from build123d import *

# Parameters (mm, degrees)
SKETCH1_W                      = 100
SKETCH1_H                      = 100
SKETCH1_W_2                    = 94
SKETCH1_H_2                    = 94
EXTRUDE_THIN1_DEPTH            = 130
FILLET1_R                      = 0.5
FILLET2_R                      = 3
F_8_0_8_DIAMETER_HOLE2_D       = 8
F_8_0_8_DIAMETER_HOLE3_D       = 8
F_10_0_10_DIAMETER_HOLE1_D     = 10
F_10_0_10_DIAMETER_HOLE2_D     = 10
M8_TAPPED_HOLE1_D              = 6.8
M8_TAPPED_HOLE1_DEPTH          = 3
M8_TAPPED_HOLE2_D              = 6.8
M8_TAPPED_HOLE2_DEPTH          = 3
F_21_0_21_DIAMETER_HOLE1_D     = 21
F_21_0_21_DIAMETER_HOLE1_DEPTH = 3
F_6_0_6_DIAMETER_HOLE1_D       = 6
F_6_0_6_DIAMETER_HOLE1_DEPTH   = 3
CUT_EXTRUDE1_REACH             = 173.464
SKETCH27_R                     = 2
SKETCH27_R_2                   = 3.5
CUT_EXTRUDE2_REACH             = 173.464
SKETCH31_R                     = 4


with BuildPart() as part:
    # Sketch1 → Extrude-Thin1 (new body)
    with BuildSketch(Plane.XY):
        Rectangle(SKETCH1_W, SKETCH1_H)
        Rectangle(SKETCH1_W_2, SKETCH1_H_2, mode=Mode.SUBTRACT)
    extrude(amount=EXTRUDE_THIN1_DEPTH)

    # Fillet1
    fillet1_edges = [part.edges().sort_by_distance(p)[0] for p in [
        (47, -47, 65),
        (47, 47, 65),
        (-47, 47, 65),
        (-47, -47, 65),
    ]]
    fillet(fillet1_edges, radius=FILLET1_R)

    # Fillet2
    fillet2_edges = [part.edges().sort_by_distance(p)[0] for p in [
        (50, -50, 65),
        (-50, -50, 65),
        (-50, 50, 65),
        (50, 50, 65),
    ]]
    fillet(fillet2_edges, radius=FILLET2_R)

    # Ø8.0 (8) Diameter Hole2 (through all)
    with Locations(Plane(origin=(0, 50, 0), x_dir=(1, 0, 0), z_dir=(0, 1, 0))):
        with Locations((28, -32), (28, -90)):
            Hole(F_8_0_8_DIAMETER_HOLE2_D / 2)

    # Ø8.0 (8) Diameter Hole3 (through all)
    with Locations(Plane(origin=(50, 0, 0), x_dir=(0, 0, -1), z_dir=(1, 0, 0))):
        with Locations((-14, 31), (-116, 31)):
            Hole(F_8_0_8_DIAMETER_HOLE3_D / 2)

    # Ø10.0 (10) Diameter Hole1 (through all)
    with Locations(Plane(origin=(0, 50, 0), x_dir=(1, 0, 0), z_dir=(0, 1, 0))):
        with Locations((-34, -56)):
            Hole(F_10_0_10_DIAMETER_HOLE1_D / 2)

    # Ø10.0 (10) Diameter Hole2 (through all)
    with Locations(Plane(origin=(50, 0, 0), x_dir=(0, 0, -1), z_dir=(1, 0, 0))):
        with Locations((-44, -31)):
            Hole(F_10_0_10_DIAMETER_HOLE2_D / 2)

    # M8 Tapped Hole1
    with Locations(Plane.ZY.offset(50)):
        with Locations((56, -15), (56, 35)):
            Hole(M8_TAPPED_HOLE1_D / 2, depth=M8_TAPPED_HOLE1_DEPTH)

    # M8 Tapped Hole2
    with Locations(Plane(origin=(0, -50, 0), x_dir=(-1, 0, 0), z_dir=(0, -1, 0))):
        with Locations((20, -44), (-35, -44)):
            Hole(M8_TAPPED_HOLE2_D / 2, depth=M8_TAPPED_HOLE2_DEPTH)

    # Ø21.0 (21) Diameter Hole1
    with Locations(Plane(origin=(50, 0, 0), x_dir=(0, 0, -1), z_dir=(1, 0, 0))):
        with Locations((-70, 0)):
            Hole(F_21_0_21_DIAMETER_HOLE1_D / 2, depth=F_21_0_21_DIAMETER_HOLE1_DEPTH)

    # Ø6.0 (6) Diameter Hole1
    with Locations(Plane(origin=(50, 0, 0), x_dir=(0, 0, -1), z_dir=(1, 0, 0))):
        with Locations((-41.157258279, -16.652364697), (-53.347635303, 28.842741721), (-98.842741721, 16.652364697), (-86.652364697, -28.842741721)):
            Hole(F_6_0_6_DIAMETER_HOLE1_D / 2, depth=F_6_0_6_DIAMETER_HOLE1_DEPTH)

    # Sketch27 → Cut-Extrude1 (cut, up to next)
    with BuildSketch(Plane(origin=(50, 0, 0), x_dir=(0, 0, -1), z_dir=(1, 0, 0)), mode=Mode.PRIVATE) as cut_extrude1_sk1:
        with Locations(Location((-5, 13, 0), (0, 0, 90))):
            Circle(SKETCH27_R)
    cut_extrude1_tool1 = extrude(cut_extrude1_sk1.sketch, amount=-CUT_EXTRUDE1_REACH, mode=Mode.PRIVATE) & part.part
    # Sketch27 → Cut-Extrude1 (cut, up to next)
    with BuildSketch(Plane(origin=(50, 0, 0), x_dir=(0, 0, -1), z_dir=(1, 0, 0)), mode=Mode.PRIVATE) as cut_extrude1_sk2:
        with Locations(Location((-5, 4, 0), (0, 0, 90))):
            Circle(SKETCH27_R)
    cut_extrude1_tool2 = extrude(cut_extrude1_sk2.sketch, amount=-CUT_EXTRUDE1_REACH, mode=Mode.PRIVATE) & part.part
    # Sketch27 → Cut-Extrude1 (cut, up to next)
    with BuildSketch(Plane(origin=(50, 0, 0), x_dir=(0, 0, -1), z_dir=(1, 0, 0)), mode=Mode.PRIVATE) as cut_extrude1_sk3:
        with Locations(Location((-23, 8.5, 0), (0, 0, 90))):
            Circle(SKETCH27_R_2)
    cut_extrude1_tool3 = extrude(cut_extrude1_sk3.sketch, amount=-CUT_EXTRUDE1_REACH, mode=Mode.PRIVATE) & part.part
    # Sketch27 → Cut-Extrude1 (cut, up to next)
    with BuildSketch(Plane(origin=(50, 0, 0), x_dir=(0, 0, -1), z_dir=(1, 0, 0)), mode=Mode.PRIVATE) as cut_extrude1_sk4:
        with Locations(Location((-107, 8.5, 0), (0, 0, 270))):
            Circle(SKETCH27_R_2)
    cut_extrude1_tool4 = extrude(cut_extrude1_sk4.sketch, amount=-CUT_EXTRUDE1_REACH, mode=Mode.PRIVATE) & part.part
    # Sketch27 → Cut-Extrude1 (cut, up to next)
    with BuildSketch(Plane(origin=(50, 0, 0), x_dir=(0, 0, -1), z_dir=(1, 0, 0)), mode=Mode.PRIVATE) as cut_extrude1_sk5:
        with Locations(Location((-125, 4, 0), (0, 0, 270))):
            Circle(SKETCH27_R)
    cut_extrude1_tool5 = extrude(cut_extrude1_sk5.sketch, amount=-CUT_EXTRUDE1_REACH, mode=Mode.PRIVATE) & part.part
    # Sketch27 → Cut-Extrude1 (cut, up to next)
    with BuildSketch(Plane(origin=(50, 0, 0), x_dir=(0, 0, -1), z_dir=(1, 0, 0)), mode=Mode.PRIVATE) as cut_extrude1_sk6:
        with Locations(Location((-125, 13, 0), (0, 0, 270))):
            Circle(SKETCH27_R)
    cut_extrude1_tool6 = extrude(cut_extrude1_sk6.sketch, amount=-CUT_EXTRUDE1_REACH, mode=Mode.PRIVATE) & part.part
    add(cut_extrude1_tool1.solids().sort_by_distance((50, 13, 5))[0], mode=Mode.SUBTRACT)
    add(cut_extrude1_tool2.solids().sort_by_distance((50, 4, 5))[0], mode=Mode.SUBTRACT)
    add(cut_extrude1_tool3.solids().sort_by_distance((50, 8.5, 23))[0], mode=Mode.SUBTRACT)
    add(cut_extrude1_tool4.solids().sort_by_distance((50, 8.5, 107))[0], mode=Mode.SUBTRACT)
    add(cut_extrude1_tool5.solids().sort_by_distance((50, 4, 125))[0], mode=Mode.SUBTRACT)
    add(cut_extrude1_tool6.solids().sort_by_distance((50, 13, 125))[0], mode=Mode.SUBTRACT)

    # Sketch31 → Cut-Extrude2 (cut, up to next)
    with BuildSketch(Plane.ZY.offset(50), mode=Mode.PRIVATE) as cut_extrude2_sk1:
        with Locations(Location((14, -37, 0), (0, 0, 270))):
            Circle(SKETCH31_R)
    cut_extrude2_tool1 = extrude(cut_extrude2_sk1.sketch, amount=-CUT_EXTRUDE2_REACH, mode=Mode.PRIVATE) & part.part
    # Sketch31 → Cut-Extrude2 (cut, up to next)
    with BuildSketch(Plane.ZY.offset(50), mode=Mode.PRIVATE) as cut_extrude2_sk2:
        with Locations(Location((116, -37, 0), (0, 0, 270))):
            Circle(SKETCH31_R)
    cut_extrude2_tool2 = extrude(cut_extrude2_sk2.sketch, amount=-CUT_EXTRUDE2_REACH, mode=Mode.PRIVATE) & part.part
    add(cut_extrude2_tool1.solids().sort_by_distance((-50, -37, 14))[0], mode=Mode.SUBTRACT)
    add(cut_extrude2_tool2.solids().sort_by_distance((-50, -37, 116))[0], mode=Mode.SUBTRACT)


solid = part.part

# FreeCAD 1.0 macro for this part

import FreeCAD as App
import Part
import Sketcher
from FreeCAD import Vector
Q = App.Units.Quantity


def edges_at(feature, points):
    """Names of the edges that pass closest to the given points."""
    edges = feature.Shape.Edges
    near = lambda p: min(range(len(edges)), key=lambda i: edges[i].distToShape(Part.Vertex(*p))[0])
    return sorted({f"Edge{near(p) + 1}" for p in points})


def add_polygon(sketch, points):
    """Adds a closed chain of lines whose ends are joined by coincident constraints."""
    first, n = sketch.GeometryCount, len(points)
    for a, b in zip(points, points[1:] + points[:1]):
        sketch.addGeometry(Part.LineSegment(App.Vector(*a, 0), App.Vector(*b, 0)), False)
    for i in range(n):
        sketch.addConstraint(Sketcher.Constraint("Coincident", first + i, 2, first + (i + 1) % n, 1))

doc = App.newDocument("Part")
body = doc.addObject("PartDesign::Body", "Body")

# Sketch on XY plane
sketch1 = doc.addObject("Sketcher::SketchObject", "Sketch")
body.addObject(sketch1)
sketch1.AttachmentSupport = (doc.XY_Plane, [""])
sketch1.MapMode = "FlatFace"
add_polygon(sketch1, [(-50, 50), (-50, -50), (50, -50), (50, 50)])  # lines 0-3
add_polygon(sketch1, [(47, -47), (-47, -47), (-47, 47), (47, 47)])  # lines 4-7
sketch1.addConstraint([
    Sketcher.Constraint("Vertical", 0),
    Sketcher.Constraint("Horizontal", 1),
    Sketcher.Constraint("Vertical", 2),
    Sketcher.Constraint("Horizontal", 3),
    Sketcher.Constraint("Horizontal", 4),
    Sketcher.Constraint("Vertical", 5),
    Sketcher.Constraint("Horizontal", 6),
    Sketcher.Constraint("Vertical", 7),
    Sketcher.Constraint("Symmetric", 0, 2, 2, 2, -1, 1),
    Sketcher.Constraint("Symmetric", 4, 2, 6, 2, -1, 1),
    Sketcher.Constraint("Equal", 3, 0),
    Sketcher.Constraint("Equal", 6, 5),
    Sketcher.Constraint("DistanceX", 1, 1, 1, 2, Q("100 mm")),
    Sketcher.Constraint("DistanceX", 4, 2, 4, 1, Q("94 mm")),
])
pad1 = doc.addObject("PartDesign::Pad", "Pad")
body.addObject(pad1)
pad1.Profile = sketch1
pad1.Length = 130
doc.recompute()

fillet = doc.addObject("PartDesign::Fillet", "Fillet")
body.addObject(fillet)
fillet.Base = (pad1, edges_at(pad1, [
    (47, -47, 65),
    (47, 47, 65),
    (-47, 47, 65),
    (-47, -47, 65),
]))
fillet.Radius = 0.5
doc.recompute()

fillet2 = doc.addObject("PartDesign::Fillet", "Fillet001")
body.addObject(fillet2)
fillet2.Base = (fillet, edges_at(fillet, [
    (50, -50, 65),
    (-50, -50, 65),
    (-50, 50, 65),
    (50, 50, 65),
]))
fillet2.Radius = 3

# Sketch on XZ plane
sketch2 = doc.addObject("Sketcher::SketchObject", "Sketch001")
body.addObject(sketch2)
sketch2.AttachmentSupport = (doc.XZ_Plane, [""])
sketch2.MapMode = "FlatFace"
sketch2.AttachmentOffset = App.Placement(Vector(0, 0, -50), App.Rotation())
sketch2.addGeometry([
    Part.Circle(Vector(28, 32, 0), Vector(0, 0, 1), 4),
    Part.Circle(Vector(28, 90, 0), Vector(0, 0, 1), 4),
], False)
sketch2.addConstraint([
    Sketcher.Constraint("Equal", 0, 1),
    Sketcher.Constraint("Vertical", 0, 3, 1, 3),
    Sketcher.Constraint("Diameter", 0, Q("8 mm")),
    Sketcher.Constraint("DistanceX", -1, 1, 0, 3, Q("28 mm")),
    Sketcher.Constraint("DistanceY", -1, 1, 0, 3, Q("32 mm")),
    Sketcher.Constraint("DistanceY", -1, 1, 1, 3, Q("90 mm")),
])
doc.recompute()
hole = doc.addObject("PartDesign::Hole", "Hole")
body.addObject(hole)
hole.Profile = sketch2
hole.ThreadType = "None"
hole.Diameter = 8
hole.DepthType = "ThroughAll"
hole.Reversed = True

# Sketch on YZ plane
sketch3 = doc.addObject("Sketcher::SketchObject", "Sketch002")
body.addObject(sketch3)
sketch3.AttachmentSupport = (doc.YZ_Plane, [""])
sketch3.MapMode = "FlatFace"
sketch3.AttachmentOffset = App.Placement(Vector(0, 0, 50), App.Rotation())
sketch3.addGeometry([
    Part.Circle(Vector(31, 14, 0), Vector(0, 0, 1), 4),
    Part.Circle(Vector(31, 116, 0), Vector(0, 0, 1), 4),
], False)
sketch3.addConstraint([
    Sketcher.Constraint("Equal", 0, 1),
    Sketcher.Constraint("Vertical", 0, 3, 1, 3),
    Sketcher.Constraint("Diameter", 0, Q("8 mm")),
    Sketcher.Constraint("DistanceX", -1, 1, 0, 3, Q("31 mm")),
    Sketcher.Constraint("DistanceY", -1, 1, 0, 3, Q("14 mm")),
    Sketcher.Constraint("DistanceY", -1, 1, 1, 3, Q("116 mm")),
])
doc.recompute()
hole2 = doc.addObject("PartDesign::Hole", "Hole001")
body.addObject(hole2)
hole2.Profile = sketch3
hole2.ThreadType = "None"
hole2.Diameter = 8
hole2.DepthType = "ThroughAll"

# Sketch on XZ plane
sketch4 = doc.addObject("Sketcher::SketchObject", "Sketch003")
body.addObject(sketch4)
sketch4.AttachmentSupport = (doc.XZ_Plane, [""])
sketch4.MapMode = "FlatFace"
sketch4.AttachmentOffset = App.Placement(Vector(0, 0, -50), App.Rotation())
sketch4.addGeometry(Part.Circle(Vector(-34, 56, 0), Vector(0, 0, 1), 5), False)
sketch4.addConstraint([
    Sketcher.Constraint("Diameter", 0, Q("10 mm")),
    Sketcher.Constraint("DistanceX", 0, 3, -1, 1, Q("34 mm")),
    Sketcher.Constraint("DistanceY", -1, 1, 0, 3, Q("56 mm")),
])
doc.recompute()
hole3 = doc.addObject("PartDesign::Hole", "Hole002")
body.addObject(hole3)
hole3.Profile = sketch4
hole3.ThreadType = "None"
hole3.Diameter = 10
hole3.DepthType = "ThroughAll"
hole3.Reversed = True

# Sketch on YZ plane
sketch5 = doc.addObject("Sketcher::SketchObject", "Sketch004")
body.addObject(sketch5)
sketch5.AttachmentSupport = (doc.YZ_Plane, [""])
sketch5.MapMode = "FlatFace"
sketch5.AttachmentOffset = App.Placement(Vector(0, 0, 50), App.Rotation())
sketch5.addGeometry(Part.Circle(Vector(-31, 44, 0), Vector(0, 0, 1), 5), False)
sketch5.addConstraint([
    Sketcher.Constraint("Diameter", 0, Q("10 mm")),
    Sketcher.Constraint("DistanceX", 0, 3, -1, 1, Q("31 mm")),
    Sketcher.Constraint("DistanceY", -1, 1, 0, 3, Q("44 mm")),
])
doc.recompute()
hole4 = doc.addObject("PartDesign::Hole", "Hole003")
body.addObject(hole4)
hole4.Profile = sketch5
hole4.ThreadType = "None"
hole4.Diameter = 10
hole4.DepthType = "ThroughAll"

# Sketch on YZ plane
sketch6 = doc.addObject("Sketcher::SketchObject", "Sketch005")
body.addObject(sketch6)
sketch6.AttachmentSupport = (doc.YZ_Plane, [""])
sketch6.MapMode = "FlatFace"
sketch6.AttachmentOffset = App.Placement(Vector(0, 0, -50), App.Rotation())
sketch6.addGeometry([
    Part.Circle(Vector(-15, 56, 0), Vector(0, 0, 1), 3.4),
    Part.Circle(Vector(35, 56, 0), Vector(0, 0, 1), 3.4),
], False)
sketch6.addConstraint([
    Sketcher.Constraint("Equal", 0, 1),
    Sketcher.Constraint("Horizontal", 0, 3, 1, 3),
    Sketcher.Constraint("Diameter", 0, Q("6.8 mm")),
    Sketcher.Constraint("DistanceX", 0, 3, -1, 1, Q("15 mm")),
    Sketcher.Constraint("DistanceY", -1, 1, 0, 3, Q("56 mm")),
    Sketcher.Constraint("DistanceX", -1, 1, 1, 3, Q("35 mm")),
])
doc.recompute()
hole5 = doc.addObject("PartDesign::Hole", "Hole004")
body.addObject(hole5)
hole5.Profile = sketch6
hole5.ThreadType = "None"
hole5.Diameter = 6.8
hole5.DepthType = "Dimension"
hole5.Depth = 3
hole5.DrillPoint = "Flat"
hole5.Reversed = True

# Sketch on XZ plane
sketch7 = doc.addObject("Sketcher::SketchObject", "Sketch006")
body.addObject(sketch7)
sketch7.AttachmentSupport = (doc.XZ_Plane, [""])
sketch7.MapMode = "FlatFace"
sketch7.AttachmentOffset = App.Placement(Vector(0, 0, 50), App.Rotation())
sketch7.addGeometry([
    Part.Circle(Vector(-20, 44, 0), Vector(0, 0, 1), 3.4),
    Part.Circle(Vector(35, 44, 0), Vector(0, 0, 1), 3.4),
], False)
sketch7.addConstraint([
    Sketcher.Constraint("Equal", 0, 1),
    Sketcher.Constraint("Horizontal", 0, 3, 1, 3),
    Sketcher.Constraint("Diameter", 0, Q("6.8 mm")),
    Sketcher.Constraint("DistanceX", 0, 3, -1, 1, Q("20 mm")),
    Sketcher.Constraint("DistanceY", -1, 1, 0, 3, Q("44 mm")),
    Sketcher.Constraint("DistanceX", -1, 1, 1, 3, Q("35 mm")),
])
doc.recompute()
hole6 = doc.addObject("PartDesign::Hole", "Hole005")
body.addObject(hole6)
hole6.Profile = sketch7
hole6.ThreadType = "None"
hole6.Diameter = 6.8
hole6.DepthType = "Dimension"
hole6.Depth = 3
hole6.DrillPoint = "Flat"

# Sketch on YZ plane
sketch8 = doc.addObject("Sketcher::SketchObject", "Sketch007")
body.addObject(sketch8)
sketch8.AttachmentSupport = (doc.YZ_Plane, [""])
sketch8.MapMode = "FlatFace"
sketch8.AttachmentOffset = App.Placement(Vector(0, 0, 50), App.Rotation())
sketch8.addGeometry(Part.Circle(Vector(0, 70, 0), Vector(0, 0, 1), 10), False)
sketch8.addConstraint([
    Sketcher.Constraint("PointOnObject", 0, 3, -2),
    Sketcher.Constraint("Diameter", 0, Q("21 mm")),
    Sketcher.Constraint("DistanceY", -1, 1, 0, 3, Q("70 mm")),
])
doc.recompute()
hole7 = doc.addObject("PartDesign::Hole", "Hole006")
body.addObject(hole7)
hole7.Profile = sketch8
hole7.ThreadType = "None"
hole7.Diameter = 21
hole7.DepthType = "Dimension"
hole7.Depth = 3
hole7.DrillPoint = "Flat"

# Sketch on YZ plane
sketch9 = doc.addObject("Sketcher::SketchObject", "Sketch008")
body.addObject(sketch9)
sketch9.AttachmentSupport = (doc.YZ_Plane, [""])
sketch9.MapMode = "FlatFace"
sketch9.AttachmentOffset = App.Placement(Vector(0, 0, 50), App.Rotation())
sketch9.addGeometry([
    Part.Circle(Vector(-16.7, 41.2, 0), Vector(0, 0, 1), 3),
    Part.Circle(Vector(28.8, 53.3, 0), Vector(0, 0, 1), 3),
    Part.Circle(Vector(16.7, 98.8, 0), Vector(0, 0, 1), 3),
    Part.Circle(Vector(-28.8, 86.7, 0), Vector(0, 0, 1), 3),
], False)
sketch9.addConstraint([
    Sketcher.Constraint("Equal", 0, 1),
    Sketcher.Constraint("Equal", 1, 2),
    Sketcher.Constraint("Equal", 2, 3),
    Sketcher.Constraint("Diameter", 0, Q("6 mm")),
    Sketcher.Constraint("DistanceY", -1, 1, 0, 3, Q("41.157258 mm")),
    Sketcher.Constraint("DistanceX", -1, 1, 1, 3, Q("28.842742 mm")),
    Sketcher.Constraint("DistanceY", -1, 1, 2, 3, Q("98.842742 mm")),
    Sketcher.Constraint("DistanceX", 3, 3, -1, 1, Q("28.842742 mm")),
    Sketcher.Constraint("DistanceX", 0, 3, 2, 3, Q("33.304729 mm")),
    Sketcher.Constraint("DistanceY", 1, 3, 3, 3, Q("33.304729 mm")),
    Sketcher.Constraint("DistanceX", 0, 3, -1, 1, Q("16.652365 mm")),
    Sketcher.Constraint("DistanceY", -1, 1, 1, 3, Q("53.347635 mm")),
])
doc.recompute()
hole8 = doc.addObject("PartDesign::Hole", "Hole007")
body.addObject(hole8)
hole8.Profile = sketch9
hole8.ThreadType = "None"
hole8.Diameter = 6
hole8.DepthType = "Dimension"
hole8.Depth = 3
hole8.DrillPoint = "Flat"

# Sketch on YZ plane
sketch10 = doc.addObject("Sketcher::SketchObject", "Sketch009")
body.addObject(sketch10)
sketch10.AttachmentSupport = (doc.YZ_Plane, [""])
sketch10.MapMode = "FlatFace"
sketch10.AttachmentOffset = App.Placement(Vector(0, 0, 50), App.Rotation())
sketch10.addGeometry(Part.Circle(Vector(13, 5, 0), Vector(0, 0, 1), 2), False)
sketch10.addConstraint([
    Sketcher.Constraint("Diameter", 0, Q("4 mm")),
    Sketcher.Constraint("DistanceX", -1, 1, 0, 3, Q("13 mm")),
    Sketcher.Constraint("DistanceY", -1, 1, 0, 3, Q("5 mm")),
])
pocket1 = doc.addObject("PartDesign::Pocket", "Pocket")
body.addObject(pocket1)
pocket1.Profile = sketch10
pocket1.Type = "UpToFirst"

# Sketch on YZ plane
sketch11 = doc.addObject("Sketcher::SketchObject", "Sketch010")
body.addObject(sketch11)
sketch11.AttachmentSupport = (doc.YZ_Plane, [""])
sketch11.MapMode = "FlatFace"
sketch11.AttachmentOffset = App.Placement(Vector(0, 0, 50), App.Rotation())
sketch11.addGeometry(Part.Circle(Vector(4, 5, 0), Vector(0, 0, 1), 2), False)
sketch11.addConstraint([
    Sketcher.Constraint("Diameter", 0, Q("4 mm")),
    Sketcher.Constraint("DistanceX", -1, 1, 0, 3, Q("4 mm")),
    Sketcher.Constraint("DistanceY", -1, 1, 0, 3, Q("5 mm")),
])
pocket2 = doc.addObject("PartDesign::Pocket", "Pocket001")
body.addObject(pocket2)
pocket2.Profile = sketch11
pocket2.Type = "UpToFirst"

# Sketch on YZ plane
sketch12 = doc.addObject("Sketcher::SketchObject", "Sketch011")
body.addObject(sketch12)
sketch12.AttachmentSupport = (doc.YZ_Plane, [""])
sketch12.MapMode = "FlatFace"
sketch12.AttachmentOffset = App.Placement(Vector(0, 0, 50), App.Rotation())
sketch12.addGeometry(Part.Circle(Vector(8.5, 23, 0), Vector(0, 0, 1), 3.5), False)
sketch12.addConstraint([
    Sketcher.Constraint("Diameter", 0, Q("7 mm")),
    Sketcher.Constraint("DistanceY", -1, 1, 0, 3, Q("23 mm")),
    Sketcher.Constraint("DistanceX", -1, 1, 0, 3, Q("8.5 mm")),
])
pocket3 = doc.addObject("PartDesign::Pocket", "Pocket002")
body.addObject(pocket3)
pocket3.Profile = sketch12
pocket3.Type = "UpToFirst"

# Sketch on YZ plane
sketch13 = doc.addObject("Sketcher::SketchObject", "Sketch012")
body.addObject(sketch13)
sketch13.AttachmentSupport = (doc.YZ_Plane, [""])
sketch13.MapMode = "FlatFace"
sketch13.AttachmentOffset = App.Placement(Vector(0, 0, 50), App.Rotation())
sketch13.addGeometry(Part.Circle(Vector(8.5, 107, 0), Vector(0, 0, 1), 3.5), False)
sketch13.addConstraint([
    Sketcher.Constraint("Diameter", 0, Q("7 mm")),
    Sketcher.Constraint("DistanceY", -1, 1, 0, 3, Q("107 mm")),
    Sketcher.Constraint("DistanceX", -1, 1, 0, 3, Q("8.5 mm")),
])
pocket4 = doc.addObject("PartDesign::Pocket", "Pocket003")
body.addObject(pocket4)
pocket4.Profile = sketch13
pocket4.Type = "UpToFirst"

# Sketch on YZ plane
sketch14 = doc.addObject("Sketcher::SketchObject", "Sketch013")
body.addObject(sketch14)
sketch14.AttachmentSupport = (doc.YZ_Plane, [""])
sketch14.MapMode = "FlatFace"
sketch14.AttachmentOffset = App.Placement(Vector(0, 0, 50), App.Rotation())
sketch14.addGeometry(Part.Circle(Vector(4, 125, 0), Vector(0, 0, 1), 2), False)
sketch14.addConstraint([
    Sketcher.Constraint("Diameter", 0, Q("4 mm")),
    Sketcher.Constraint("DistanceX", -1, 1, 0, 3, Q("4 mm")),
    Sketcher.Constraint("DistanceY", -1, 1, 0, 3, Q("125 mm")),
])
pocket5 = doc.addObject("PartDesign::Pocket", "Pocket004")
body.addObject(pocket5)
pocket5.Profile = sketch14
pocket5.Type = "UpToFirst"

# Sketch on YZ plane
sketch15 = doc.addObject("Sketcher::SketchObject", "Sketch014")
body.addObject(sketch15)
sketch15.AttachmentSupport = (doc.YZ_Plane, [""])
sketch15.MapMode = "FlatFace"
sketch15.AttachmentOffset = App.Placement(Vector(0, 0, 50), App.Rotation())
sketch15.addGeometry(Part.Circle(Vector(13, 125, 0), Vector(0, 0, 1), 2), False)
sketch15.addConstraint([
    Sketcher.Constraint("Diameter", 0, Q("4 mm")),
    Sketcher.Constraint("DistanceX", -1, 1, 0, 3, Q("13 mm")),
    Sketcher.Constraint("DistanceY", -1, 1, 0, 3, Q("125 mm")),
])
pocket6 = doc.addObject("PartDesign::Pocket", "Pocket005")
body.addObject(pocket6)
pocket6.Profile = sketch15
pocket6.Type = "UpToFirst"

# Sketch on YZ plane
sketch16 = doc.addObject("Sketcher::SketchObject", "Sketch015")
body.addObject(sketch16)
sketch16.AttachmentSupport = (doc.YZ_Plane, [""])
sketch16.MapMode = "FlatFace"
sketch16.AttachmentOffset = App.Placement(Vector(0, 0, -50), App.Rotation())
sketch16.addGeometry(Part.Circle(Vector(-37, 14, 0), Vector(0, 0, 1), 4), False)
sketch16.addConstraint([
    Sketcher.Constraint("Diameter", 0, Q("8 mm")),
    Sketcher.Constraint("DistanceX", 0, 3, -1, 1, Q("37 mm")),
    Sketcher.Constraint("DistanceY", -1, 1, 0, 3, Q("14 mm")),
])
pocket7 = doc.addObject("PartDesign::Pocket", "Pocket006")
body.addObject(pocket7)
pocket7.Profile = sketch16
pocket7.Type = "UpToFirst"
pocket7.Reversed = True

# Sketch on YZ plane
sketch17 = doc.addObject("Sketcher::SketchObject", "Sketch016")
body.addObject(sketch17)
sketch17.AttachmentSupport = (doc.YZ_Plane, [""])
sketch17.MapMode = "FlatFace"
sketch17.AttachmentOffset = App.Placement(Vector(0, 0, -50), App.Rotation())
sketch17.addGeometry(Part.Circle(Vector(-37, 116, 0), Vector(0, 0, 1), 4), False)
sketch17.addConstraint([
    Sketcher.Constraint("Diameter", 0, Q("8 mm")),
    Sketcher.Constraint("DistanceX", 0, 3, -1, 1, Q("37 mm")),
    Sketcher.Constraint("DistanceY", -1, 1, 0, 3, Q("116 mm")),
])
pocket8 = doc.addObject("PartDesign::Pocket", "Pocket007")
body.addObject(pocket8)
pocket8.Profile = sketch17
pocket8.Type = "UpToFirst"
pocket8.Reversed = True

doc.recompute()
